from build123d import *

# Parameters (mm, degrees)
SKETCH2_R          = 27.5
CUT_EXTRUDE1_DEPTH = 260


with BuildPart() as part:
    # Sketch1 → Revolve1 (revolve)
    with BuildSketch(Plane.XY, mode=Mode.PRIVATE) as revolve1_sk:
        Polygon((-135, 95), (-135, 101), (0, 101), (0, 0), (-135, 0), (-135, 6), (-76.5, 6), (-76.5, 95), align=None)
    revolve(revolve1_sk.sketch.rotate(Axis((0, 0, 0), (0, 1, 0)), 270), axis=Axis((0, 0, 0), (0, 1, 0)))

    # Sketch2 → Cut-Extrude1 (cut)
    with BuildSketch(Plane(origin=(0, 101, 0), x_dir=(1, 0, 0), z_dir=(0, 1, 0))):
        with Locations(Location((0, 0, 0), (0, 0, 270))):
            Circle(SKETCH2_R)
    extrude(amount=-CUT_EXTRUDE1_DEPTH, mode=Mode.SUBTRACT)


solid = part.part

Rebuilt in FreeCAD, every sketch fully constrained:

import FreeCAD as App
import Part
import Sketcher

V = App.Vector


def add_polygon(sketch, points):
    """Adds a closed chain of lines whose ends are joined by coincident constraints."""
    first, n = sketch.GeometryCount, len(points)
    for a, b in zip(points, points[1:] + points[:1]):
        sketch.addGeometry(Part.LineSegment(App.Vector(*a, 0), App.Vector(*b, 0)), False)
    for i in range(n):
        sketch.addConstraint(Sketcher.Constraint("Coincident", first + i, 2, first + (i + 1) % n, 1))

doc = App.newDocument("Part")
body = doc.addObject("PartDesign::Body", "Body")

sketch1 = body.newObject("Sketcher::SketchObject", "Sketch")
sketch1.AttachmentSupport = (doc.getObject("XY_Plane"), [""])
sketch1.MapMode = "FlatFace"
add_polygon(sketch1, [(-135, 101), (-135, 95), (-76.5, 95), (-76.5, 6), (-135, 6), (-135, 0), (0, 0), (0, 101)])
sketch1.addConstraint(Sketcher.Constraint("Vertical", 0))
sketch1.addConstraint(Sketcher.Constraint("Horizontal", 1))
sketch1.addConstraint(Sketcher.Constraint("Vertical", 2))
sketch1.addConstraint(Sketcher.Constraint("Horizontal", 3))
sketch1.addConstraint(Sketcher.Constraint("Vertical", 4))
sketch1.addConstraint(Sketcher.Constraint("Horizontal", 5))
sketch1.addConstraint(Sketcher.Constraint("Vertical", 6))
sketch1.addConstraint(Sketcher.Constraint("Horizontal", 7))
sketch1.addConstraint(Sketcher.Constraint("Coincident", 5, 2, -1, 1))
sketch1.addConstraint(Sketcher.Constraint("Vertical", 0, 2, 3, 2))
sketch1.addConstraint(Sketcher.Constraint("Equal", 0, 4))
sketch1.addConstraint(Sketcher.Constraint("DistanceX", 5, 1, 5, 2, 135.0))
sketch1.addConstraint(Sketcher.Constraint("DistanceY", 0, 2, 0, 1, 6.0))
sketch1.addConstraint(Sketcher.Constraint("DistanceY", 2, 2, 2, 1, 89.0))
sketch1.addConstraint(Sketcher.Constraint("DistanceX", 1, 1, 1, 2, 58.5))
revolution = body.newObject("PartDesign::Revolution", "Revolution")
revolution.Profile = sketch1
revolution.ReferenceAxis = (sketch1, ["V_Axis"])
revolution.Angle = 360

sketch2 = body.newObject("Sketcher::SketchObject", "Sketch001")
sketch2.AttachmentSupport = (doc.getObject("XZ_Plane"), [""])
sketch2.MapMode = "FlatFace"
sketch2.AttachmentOffset = App.Placement(V(0, 0, -101), App.Rotation())
sketch2.addGeometry(Part.Circle(V(0, 0, 0), V(0, 0, 1), 27.5), False)
sketch2.addConstraint(Sketcher.Constraint("Coincident", 0, 3, -1, 1))
sketch2.addConstraint(Sketcher.Constraint("Diameter", 0, 55.0))
pocket1 = body.newObject("PartDesign::Pocket", "Pocket")
pocket1.Profile = sketch2
pocket1.Length = 260
pocket1.Reversed = True

doc.recompute()
